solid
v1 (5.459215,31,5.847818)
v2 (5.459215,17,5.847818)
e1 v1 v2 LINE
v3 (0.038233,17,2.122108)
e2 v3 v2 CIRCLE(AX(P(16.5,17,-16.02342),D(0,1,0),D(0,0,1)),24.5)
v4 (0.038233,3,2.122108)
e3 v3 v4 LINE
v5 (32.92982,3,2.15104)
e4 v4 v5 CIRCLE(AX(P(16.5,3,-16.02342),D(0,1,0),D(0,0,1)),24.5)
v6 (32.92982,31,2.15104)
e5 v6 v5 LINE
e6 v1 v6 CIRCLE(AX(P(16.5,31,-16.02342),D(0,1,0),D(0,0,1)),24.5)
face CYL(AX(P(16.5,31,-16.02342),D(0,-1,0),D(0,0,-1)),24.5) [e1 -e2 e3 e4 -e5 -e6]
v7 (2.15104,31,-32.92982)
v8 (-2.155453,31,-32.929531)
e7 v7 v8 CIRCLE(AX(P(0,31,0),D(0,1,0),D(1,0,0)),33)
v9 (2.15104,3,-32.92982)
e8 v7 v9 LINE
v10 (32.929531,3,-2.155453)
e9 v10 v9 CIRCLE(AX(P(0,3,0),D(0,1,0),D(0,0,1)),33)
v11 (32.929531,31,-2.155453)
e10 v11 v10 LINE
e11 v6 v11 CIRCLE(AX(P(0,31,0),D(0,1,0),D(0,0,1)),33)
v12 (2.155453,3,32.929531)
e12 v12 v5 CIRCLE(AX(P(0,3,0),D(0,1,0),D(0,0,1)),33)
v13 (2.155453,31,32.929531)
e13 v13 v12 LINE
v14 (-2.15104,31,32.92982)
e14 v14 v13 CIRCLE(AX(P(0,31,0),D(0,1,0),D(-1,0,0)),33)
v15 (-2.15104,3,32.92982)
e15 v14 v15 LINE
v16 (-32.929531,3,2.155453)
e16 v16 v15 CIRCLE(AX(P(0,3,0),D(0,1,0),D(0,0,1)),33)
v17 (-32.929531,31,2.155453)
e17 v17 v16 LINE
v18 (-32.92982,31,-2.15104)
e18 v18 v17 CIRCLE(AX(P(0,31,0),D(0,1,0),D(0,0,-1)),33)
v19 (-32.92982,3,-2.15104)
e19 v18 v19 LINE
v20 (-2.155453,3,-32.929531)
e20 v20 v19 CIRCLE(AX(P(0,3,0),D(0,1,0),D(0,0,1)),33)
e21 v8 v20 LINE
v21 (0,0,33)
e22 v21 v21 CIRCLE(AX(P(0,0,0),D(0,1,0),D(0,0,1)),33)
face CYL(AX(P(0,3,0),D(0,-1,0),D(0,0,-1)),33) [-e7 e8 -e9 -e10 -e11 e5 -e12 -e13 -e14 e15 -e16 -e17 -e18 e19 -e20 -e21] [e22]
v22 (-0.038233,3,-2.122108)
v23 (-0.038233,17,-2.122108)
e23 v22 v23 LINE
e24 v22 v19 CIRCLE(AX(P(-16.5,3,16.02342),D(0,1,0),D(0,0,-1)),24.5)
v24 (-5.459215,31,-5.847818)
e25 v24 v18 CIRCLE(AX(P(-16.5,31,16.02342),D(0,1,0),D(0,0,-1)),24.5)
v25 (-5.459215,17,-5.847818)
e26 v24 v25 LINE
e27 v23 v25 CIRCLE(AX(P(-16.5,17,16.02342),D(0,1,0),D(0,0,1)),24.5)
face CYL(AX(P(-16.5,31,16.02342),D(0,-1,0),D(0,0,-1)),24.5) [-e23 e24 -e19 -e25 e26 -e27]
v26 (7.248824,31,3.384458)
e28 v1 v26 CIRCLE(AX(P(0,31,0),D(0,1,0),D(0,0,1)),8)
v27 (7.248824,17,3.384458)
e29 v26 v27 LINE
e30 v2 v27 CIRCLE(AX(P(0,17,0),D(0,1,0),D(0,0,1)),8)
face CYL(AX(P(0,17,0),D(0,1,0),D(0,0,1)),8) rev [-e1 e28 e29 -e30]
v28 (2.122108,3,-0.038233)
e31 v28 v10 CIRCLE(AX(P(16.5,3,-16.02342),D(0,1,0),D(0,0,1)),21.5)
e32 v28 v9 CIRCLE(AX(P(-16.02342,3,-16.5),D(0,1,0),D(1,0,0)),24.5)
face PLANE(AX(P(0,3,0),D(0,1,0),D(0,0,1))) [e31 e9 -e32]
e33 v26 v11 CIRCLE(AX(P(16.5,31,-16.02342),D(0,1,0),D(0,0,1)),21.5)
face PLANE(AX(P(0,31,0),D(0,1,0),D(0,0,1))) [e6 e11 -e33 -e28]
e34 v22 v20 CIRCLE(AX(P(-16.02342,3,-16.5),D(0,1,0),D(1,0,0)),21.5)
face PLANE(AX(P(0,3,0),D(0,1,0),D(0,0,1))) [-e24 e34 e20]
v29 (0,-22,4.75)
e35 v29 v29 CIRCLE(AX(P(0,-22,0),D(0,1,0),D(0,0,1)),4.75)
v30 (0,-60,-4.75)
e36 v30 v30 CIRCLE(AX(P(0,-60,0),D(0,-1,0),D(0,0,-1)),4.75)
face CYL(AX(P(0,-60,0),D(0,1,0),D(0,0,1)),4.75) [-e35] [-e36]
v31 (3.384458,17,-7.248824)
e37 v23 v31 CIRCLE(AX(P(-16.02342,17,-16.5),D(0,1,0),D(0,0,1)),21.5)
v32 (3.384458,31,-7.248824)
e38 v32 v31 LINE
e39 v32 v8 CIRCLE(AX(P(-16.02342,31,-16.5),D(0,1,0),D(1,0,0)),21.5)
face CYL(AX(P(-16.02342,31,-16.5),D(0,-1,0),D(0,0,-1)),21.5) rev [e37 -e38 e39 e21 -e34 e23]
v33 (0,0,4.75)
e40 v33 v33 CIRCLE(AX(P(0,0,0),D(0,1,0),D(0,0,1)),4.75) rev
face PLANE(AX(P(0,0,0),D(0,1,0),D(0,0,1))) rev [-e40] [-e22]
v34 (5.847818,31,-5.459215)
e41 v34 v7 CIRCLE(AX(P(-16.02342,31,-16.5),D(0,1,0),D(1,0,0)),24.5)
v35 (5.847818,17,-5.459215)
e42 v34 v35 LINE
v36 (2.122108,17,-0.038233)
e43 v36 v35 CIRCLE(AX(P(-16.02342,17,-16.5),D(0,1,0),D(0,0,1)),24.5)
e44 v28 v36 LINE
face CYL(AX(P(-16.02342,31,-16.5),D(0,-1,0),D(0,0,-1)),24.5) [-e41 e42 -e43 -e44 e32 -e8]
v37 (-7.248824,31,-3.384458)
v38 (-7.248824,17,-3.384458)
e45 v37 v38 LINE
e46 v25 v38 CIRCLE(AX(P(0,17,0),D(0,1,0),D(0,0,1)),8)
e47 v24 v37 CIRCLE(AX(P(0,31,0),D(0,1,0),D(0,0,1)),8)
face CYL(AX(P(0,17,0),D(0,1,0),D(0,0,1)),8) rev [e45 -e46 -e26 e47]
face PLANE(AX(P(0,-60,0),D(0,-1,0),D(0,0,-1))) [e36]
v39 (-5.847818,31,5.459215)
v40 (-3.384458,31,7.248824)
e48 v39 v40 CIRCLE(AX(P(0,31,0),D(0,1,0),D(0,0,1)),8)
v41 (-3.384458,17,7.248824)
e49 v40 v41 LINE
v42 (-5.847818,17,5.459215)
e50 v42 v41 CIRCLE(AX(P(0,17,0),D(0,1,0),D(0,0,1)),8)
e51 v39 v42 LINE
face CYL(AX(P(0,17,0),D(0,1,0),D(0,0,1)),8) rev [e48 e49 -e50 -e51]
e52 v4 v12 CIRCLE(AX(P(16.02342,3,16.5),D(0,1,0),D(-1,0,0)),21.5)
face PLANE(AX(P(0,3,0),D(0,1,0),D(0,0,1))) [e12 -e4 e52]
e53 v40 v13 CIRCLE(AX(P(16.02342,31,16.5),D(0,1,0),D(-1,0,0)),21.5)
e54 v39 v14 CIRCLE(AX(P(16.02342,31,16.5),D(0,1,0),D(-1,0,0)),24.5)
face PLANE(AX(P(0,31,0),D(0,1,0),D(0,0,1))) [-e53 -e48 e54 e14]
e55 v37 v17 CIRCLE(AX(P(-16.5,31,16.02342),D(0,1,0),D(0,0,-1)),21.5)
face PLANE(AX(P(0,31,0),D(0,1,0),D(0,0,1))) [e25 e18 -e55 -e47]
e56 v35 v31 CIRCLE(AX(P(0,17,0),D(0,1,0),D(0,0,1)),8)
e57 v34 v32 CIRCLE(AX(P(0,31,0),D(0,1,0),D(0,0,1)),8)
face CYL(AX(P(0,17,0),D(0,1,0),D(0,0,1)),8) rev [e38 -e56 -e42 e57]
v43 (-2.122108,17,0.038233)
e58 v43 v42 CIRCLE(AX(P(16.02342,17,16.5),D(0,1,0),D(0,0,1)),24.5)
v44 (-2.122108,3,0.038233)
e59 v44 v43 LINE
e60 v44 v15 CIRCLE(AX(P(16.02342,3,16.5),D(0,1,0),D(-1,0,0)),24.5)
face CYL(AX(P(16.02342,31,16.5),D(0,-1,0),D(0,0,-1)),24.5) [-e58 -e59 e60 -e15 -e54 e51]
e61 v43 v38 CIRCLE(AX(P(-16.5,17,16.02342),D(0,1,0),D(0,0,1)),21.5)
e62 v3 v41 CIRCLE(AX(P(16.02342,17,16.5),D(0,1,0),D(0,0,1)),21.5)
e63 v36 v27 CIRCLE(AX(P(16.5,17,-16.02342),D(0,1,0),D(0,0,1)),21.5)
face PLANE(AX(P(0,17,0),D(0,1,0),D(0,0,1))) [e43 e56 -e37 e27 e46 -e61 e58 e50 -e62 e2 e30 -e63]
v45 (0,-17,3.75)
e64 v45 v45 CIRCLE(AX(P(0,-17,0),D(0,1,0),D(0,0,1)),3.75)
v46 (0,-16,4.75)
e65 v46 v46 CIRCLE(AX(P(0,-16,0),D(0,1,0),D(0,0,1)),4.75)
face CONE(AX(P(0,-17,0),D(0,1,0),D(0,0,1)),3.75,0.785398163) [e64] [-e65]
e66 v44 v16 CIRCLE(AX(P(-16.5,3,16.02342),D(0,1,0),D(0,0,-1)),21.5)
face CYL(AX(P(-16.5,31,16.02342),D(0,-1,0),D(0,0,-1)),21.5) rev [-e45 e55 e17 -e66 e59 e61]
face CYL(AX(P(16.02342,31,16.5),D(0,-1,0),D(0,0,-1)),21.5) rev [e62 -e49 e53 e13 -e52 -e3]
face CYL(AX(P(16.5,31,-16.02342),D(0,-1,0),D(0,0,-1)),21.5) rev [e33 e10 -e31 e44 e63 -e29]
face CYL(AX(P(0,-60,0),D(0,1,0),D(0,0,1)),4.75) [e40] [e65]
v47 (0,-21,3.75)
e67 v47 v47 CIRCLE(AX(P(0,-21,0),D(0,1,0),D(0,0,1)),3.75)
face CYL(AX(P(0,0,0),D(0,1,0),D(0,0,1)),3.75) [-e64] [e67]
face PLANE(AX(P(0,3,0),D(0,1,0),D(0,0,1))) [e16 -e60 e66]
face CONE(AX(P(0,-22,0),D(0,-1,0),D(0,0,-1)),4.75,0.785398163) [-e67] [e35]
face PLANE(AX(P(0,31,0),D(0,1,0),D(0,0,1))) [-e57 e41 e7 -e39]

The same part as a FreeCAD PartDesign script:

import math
import FreeCAD as App
import Part
import Sketcher

V = App.Vector

doc = App.newDocument("Part")
body = doc.addObject("PartDesign::Body", "Body")

# Sketch on XZ plane
sketch1 = body.newObject("Sketcher::SketchObject", "Sketch")
sketch1.AttachmentSupport = (doc.getObject("XZ_Plane"), [""])
sketch1.MapMode = "FlatFace"
sketch1.addGeometry(Part.Circle(V(0, 0, 0), V(0, 0, 1), 33), False)
sketch1.addConstraint(Sketcher.Constraint("Coincident", 0, 3, -1, 1))
sketch1.addConstraint(Sketcher.Constraint("Diameter", 0, 66.0))
pad1 = body.newObject("PartDesign::Pad", "Pad")
pad1.Profile = sketch1
pad1.Length = 3
pad1.Reversed = True

# Sketch on XZ plane
sketch2 = body.newObject("Sketcher::SketchObject", "Sketch001")
sketch2.AttachmentSupport = (doc.getObject("XZ_Plane"), [""])
sketch2.MapMode = "FlatFace"
sketch2.AttachmentOffset = App.Placement(V(0, 0, -3), App.Rotation())
sketch2.addGeometry(Part.LineSegment(V(1.076087, -1.045006, 0), V(-1.076087, 1.045006, 0)), False)
sketch2.addGeometry(Part.ArcOfCircle(Part.Circle(V(16.5, -16.02342, 0), V(0, 0, 1), 24.5), math.radians(47.886233), math.radians(135.83952)), False)
sketch2.addGeometry(Part.ArcOfCircle(Part.Circle(V(0, 0, 0), V(0, 0, 1), 33), math.radians(-3.745041), math.radians(3.737363)), False)
sketch2.addGeometry(Part.ArcOfCircle(Part.Circle(V(16.5, -16.02342, 0), V(0, 0, 1), 21.5), math.radians(40.167304), math.radians(135.83952)), False)
sketch2.addConstraint(Sketcher.Constraint("Coincident", 0, 2, 1, 2))
sketch2.addConstraint(Sketcher.Constraint("Coincident", 1, 1, 2, 2))
sketch2.addConstraint(Sketcher.Constraint("Coincident", 2, 1, 3, 1))
sketch2.addConstraint(Sketcher.Constraint("Coincident", 3, 2, 0, 1))
sketch2.addConstraint(Sketcher.Constraint("Coincident", 2, 3, -1, 1))
sketch2.addConstraint(Sketcher.Constraint("Coincident", 3, 3, 1, 3))
sketch2.addConstraint(Sketcher.Constraint("Symmetric", 0, 2, 3, 2, -1, 1))
sketch2.addConstraint(Sketcher.Constraint("Radius", 2, 33.0))
sketch2.addConstraint(Sketcher.Constraint("Radius", 1, 24.5))
sketch2.addConstraint(Sketcher.Constraint("Radius", 3, 21.5))
sketch2.addConstraint(Sketcher.Constraint("DistanceX", -1, 1, 1, 3, 16.5))
sketch2.addConstraint(Sketcher.Constraint("DistanceX", 0, 2, 2, 1, 34.005618))
pad2 = body.newObject("PartDesign::Pad", "Pad001")
pad2.Profile = sketch2
pad2.Length = 28
pad2.Reversed = True
doc.recompute()

polarpattern = body.newObject("PartDesign::PolarPattern", "PolarPattern")
polarpattern.Originals = [pad2]
polarpattern.Axis = (doc.getObject("Y_Axis"), [""])
polarpattern.Angle = 360
polarpattern.Occurrences = 4
body.Tip = polarpattern

# Sketch on XZ plane
sketch3 = body.newObject("Sketcher::SketchObject", "Sketch002")
sketch3.AttachmentSupport = (doc.getObject("XZ_Plane"), [""])
sketch3.MapMode = "FlatFace"
sketch3.AttachmentOffset = App.Placement(V(0, 0, -31), App.Rotation())
sketch3.addGeometry(Part.Circle(V(0, 0, 0), V(0, 0, 1), 8), False)
sketch3.addConstraint(Sketcher.Constraint("Coincident", 0, 3, -1, 1))
sketch3.addConstraint(Sketcher.Constraint("Diameter", 0, 16.0))
pocket1 = body.newObject("PartDesign::Pocket", "Pocket")
pocket1.Profile = sketch3
pocket1.Length = 14
pocket1.Reversed = True

# Sketch on XZ plane
sketch4 = body.newObject("Sketcher::SketchObject", "Sketch003")
sketch4.AttachmentSupport = (doc.getObject("XZ_Plane"), [""])
sketch4.MapMode = "FlatFace"
sketch4.addGeometry(Part.Circle(V(0, 0, 0), V(0, 0, 1), 4.75), False)
sketch4.addConstraint(Sketcher.Constraint("Coincident", 0, 3, -1, 1))
sketch4.addConstraint(Sketcher.Constraint("Diameter", 0, 9.5))
pad3 = body.newObject("PartDesign::Pad", "Pad002")
pad3.Profile = sketch4
pad3.Length = 60

# Sketch on XY plane
sketch5 = body.newObject("Sketcher::SketchObject", "Sketch004")
sketch5.AttachmentSupport = (doc.getObject("XY_Plane"), [""])
sketch5.MapMode = "FlatFace"
sketch5.addGeometry(Part.LineSegment(V(-3.75, -17, 0), V(-4.75, -16, 0)), False)
sketch5.addGeometry(Part.LineSegment(V(-4.75, -16, 0), V(-4.75, -22, 0)), False)
sketch5.addGeometry(Part.LineSegment(V(-4.75, -22, 0), V(-3.75, -21, 0)), False)
sketch5.addGeometry(Part.LineSegment(V(-3.75, -21, 0), V(-3.75, -17, 0)), False)
sketch5.addConstraint(Sketcher.Constraint("Coincident", 0, 2, 1, 1))
sketch5.addConstraint(Sketcher.Constraint("Coincident", 1, 2, 2, 1))
sketch5.addConstraint(Sketcher.Constraint("Coincident", 2, 2, 3, 1))
sketch5.addConstraint(Sketcher.Constraint("Coincident", 3, 2, 0, 1))
sketch5.addConstraint(Sketcher.Constraint("Vertical", 1))
sketch5.addConstraint(Sketcher.Constraint("Vertical", 3))
sketch5.addConstraint(Sketcher.Constraint("Perpendicular", 0, 2))
sketch5.addConstraint(Sketcher.Constraint("Equal", 0, 2))
sketch5.addConstraint(Sketcher.Constraint("DistanceY", 1, 2, 1, 1, 6.0))
sketch5.addConstraint(Sketcher.Constraint("DistanceY", 3, 1, 3, 2, 4.0))
sketch5.addConstraint(Sketcher.Constraint("DistanceY", 0, 2, -1, 1, 16.0))
sketch5.addConstraint(Sketcher.Constraint("DistanceX", 0, 2, -1, 1, 4.75))
groove = body.newObject("PartDesign::Groove", "Groove")
groove.Profile = sketch5
groove.ReferenceAxis = (sketch5, ["V_Axis"])
groove.Angle = 360

doc.recompute()
